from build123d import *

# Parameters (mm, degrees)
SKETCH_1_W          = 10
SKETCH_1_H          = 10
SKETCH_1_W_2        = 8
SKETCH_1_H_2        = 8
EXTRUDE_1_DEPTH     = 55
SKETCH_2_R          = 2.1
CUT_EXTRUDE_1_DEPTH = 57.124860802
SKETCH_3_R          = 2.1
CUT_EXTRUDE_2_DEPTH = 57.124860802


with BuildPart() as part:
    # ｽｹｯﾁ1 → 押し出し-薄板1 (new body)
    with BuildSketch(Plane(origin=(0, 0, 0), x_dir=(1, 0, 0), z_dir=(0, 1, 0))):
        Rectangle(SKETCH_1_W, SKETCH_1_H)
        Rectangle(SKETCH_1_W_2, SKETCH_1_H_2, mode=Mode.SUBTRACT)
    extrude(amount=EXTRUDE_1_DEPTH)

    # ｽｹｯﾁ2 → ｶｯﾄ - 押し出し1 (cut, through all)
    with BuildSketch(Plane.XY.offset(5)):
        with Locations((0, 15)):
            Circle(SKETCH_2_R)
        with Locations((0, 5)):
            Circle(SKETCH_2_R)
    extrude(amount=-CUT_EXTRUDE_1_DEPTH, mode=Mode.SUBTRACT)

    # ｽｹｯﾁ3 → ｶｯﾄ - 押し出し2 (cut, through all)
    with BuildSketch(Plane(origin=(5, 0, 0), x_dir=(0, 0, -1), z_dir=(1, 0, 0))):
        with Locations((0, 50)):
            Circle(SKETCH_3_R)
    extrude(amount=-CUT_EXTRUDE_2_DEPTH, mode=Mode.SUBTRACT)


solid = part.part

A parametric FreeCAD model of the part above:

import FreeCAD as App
import Part
import Sketcher
from FreeCAD import Vector
Q = App.Units.Quantity


def add_polygon(sketch, points):
    """Adds a closed chain of lines whose ends are joined by coincident constraints."""
    first, n = sketch.GeometryCount, len(points)
    for a, b in zip(points, points[1:] + points[:1]):
        sketch.addGeometry(Part.LineSegment(App.Vector(*a, 0), App.Vector(*b, 0)), False)
    for i in range(n):
        sketch.addConstraint(Sketcher.Constraint("Coincident", first + i, 2, first + (i + 1) % n, 1))

doc = App.newDocument("Part")
body = doc.addObject("PartDesign::Body", "Body")

# Sketch on XZ plane
sketch1 = body.newObject("Sketcher::SketchObject", "Sketch")
sketch1.AttachmentSupport = (doc.getObject("XZ_Plane"), [""])
sketch1.MapMode = "FlatFace"
add_polygon(sketch1, [(-5, -5), (-5, 5), (5, 5), (5, -5)])  # lines 0-3
add_polygon(sketch1, [(4, 4), (-4, 4), (-4, -4), (4, -4)])  # lines 4-7
sketch1.addConstraint([
    Sketcher.Constraint("Vertical", 0),
    Sketcher.Constraint("Horizontal", 1),
    Sketcher.Constraint("Vertical", 2),
    Sketcher.Constraint("Horizontal", 3),
    Sketcher.Constraint("Horizontal", 4),
    Sketcher.Constraint("Vertical", 5),
    Sketcher.Constraint("Horizontal", 6),
    Sketcher.Constraint("Vertical", 7),
    Sketcher.Constraint("Symmetric", 0, 2, 2, 2, -1, 1),
    Sketcher.Constraint("Symmetric", 4, 2, 6, 2, -1, 1),
    Sketcher.Constraint("Equal", 3, 0),
    Sketcher.Constraint("Equal", 6, 5),
    Sketcher.Constraint("DistanceX", 1, 1, 1, 2, Q("10 mm")),
    Sketcher.Constraint("DistanceX", 4, 2, 4, 1, Q("8 mm")),
])
pad1 = body.newObject("PartDesign::Pad", "Pad")
pad1.Profile = sketch1
pad1.Length = 55
pad1.Reversed = True

# Sketch on XY plane
sketch2 = body.newObject("Sketcher::SketchObject", "Sketch001")
sketch2.AttachmentSupport = (doc.getObject("XY_Plane"), [""])
sketch2.MapMode = "FlatFace"
sketch2.AttachmentOffset = App.Placement(Vector(0, 0, 5), App.Rotation())
sketch2.addGeometry([
    Part.Circle(Vector(0, 15, 0), Vector(0, 0, 1), 2.1),
    Part.Circle(Vector(0, 5, 0), Vector(0, 0, 1), 2.1),
], False)
sketch2.addConstraint([
    Sketcher.Constraint("Equal", 0, 1),
    Sketcher.Constraint("PointOnObject", 0, 3, -2),
    Sketcher.Constraint("PointOnObject", 1, 3, -2),
    Sketcher.Constraint("Diameter", 0, Q("4.2 mm")),
    Sketcher.Constraint("DistanceY", -1, 1, 0, 3, Q("15 mm")),
    Sketcher.Constraint("DistanceY", -1, 1, 1, 3, Q("5 mm")),
])
pocket1 = body.newObject("PartDesign::Pocket", "Pocket")
pocket1.Profile = sketch2
pocket1.Type = "ThroughAll"

# Sketch on YZ plane
sketch3 = body.newObject("Sketcher::SketchObject", "Sketch002")
sketch3.AttachmentSupport = (doc.getObject("YZ_Plane"), [""])
sketch3.MapMode = "FlatFace"
sketch3.AttachmentOffset = App.Placement(Vector(0, 0, 5), App.Rotation())
sketch3.addGeometry(Part.Circle(Vector(50, 0, 0), Vector(0, 0, 1), 2.1), False)
sketch3.addConstraint([
    Sketcher.Constraint("PointOnObject", 0, 3, -1),
    Sketcher.Constraint("Diameter", 0, Q("4.2 mm")),
    Sketcher.Constraint("DistanceX", -1, 1, 0, 3, Q("50 mm")),
])
pocket2 = body.newObject("PartDesign::Pocket", "Pocket001")
pocket2.Profile = sketch3
pocket2.Type = "ThroughAll"

doc.recompute()
